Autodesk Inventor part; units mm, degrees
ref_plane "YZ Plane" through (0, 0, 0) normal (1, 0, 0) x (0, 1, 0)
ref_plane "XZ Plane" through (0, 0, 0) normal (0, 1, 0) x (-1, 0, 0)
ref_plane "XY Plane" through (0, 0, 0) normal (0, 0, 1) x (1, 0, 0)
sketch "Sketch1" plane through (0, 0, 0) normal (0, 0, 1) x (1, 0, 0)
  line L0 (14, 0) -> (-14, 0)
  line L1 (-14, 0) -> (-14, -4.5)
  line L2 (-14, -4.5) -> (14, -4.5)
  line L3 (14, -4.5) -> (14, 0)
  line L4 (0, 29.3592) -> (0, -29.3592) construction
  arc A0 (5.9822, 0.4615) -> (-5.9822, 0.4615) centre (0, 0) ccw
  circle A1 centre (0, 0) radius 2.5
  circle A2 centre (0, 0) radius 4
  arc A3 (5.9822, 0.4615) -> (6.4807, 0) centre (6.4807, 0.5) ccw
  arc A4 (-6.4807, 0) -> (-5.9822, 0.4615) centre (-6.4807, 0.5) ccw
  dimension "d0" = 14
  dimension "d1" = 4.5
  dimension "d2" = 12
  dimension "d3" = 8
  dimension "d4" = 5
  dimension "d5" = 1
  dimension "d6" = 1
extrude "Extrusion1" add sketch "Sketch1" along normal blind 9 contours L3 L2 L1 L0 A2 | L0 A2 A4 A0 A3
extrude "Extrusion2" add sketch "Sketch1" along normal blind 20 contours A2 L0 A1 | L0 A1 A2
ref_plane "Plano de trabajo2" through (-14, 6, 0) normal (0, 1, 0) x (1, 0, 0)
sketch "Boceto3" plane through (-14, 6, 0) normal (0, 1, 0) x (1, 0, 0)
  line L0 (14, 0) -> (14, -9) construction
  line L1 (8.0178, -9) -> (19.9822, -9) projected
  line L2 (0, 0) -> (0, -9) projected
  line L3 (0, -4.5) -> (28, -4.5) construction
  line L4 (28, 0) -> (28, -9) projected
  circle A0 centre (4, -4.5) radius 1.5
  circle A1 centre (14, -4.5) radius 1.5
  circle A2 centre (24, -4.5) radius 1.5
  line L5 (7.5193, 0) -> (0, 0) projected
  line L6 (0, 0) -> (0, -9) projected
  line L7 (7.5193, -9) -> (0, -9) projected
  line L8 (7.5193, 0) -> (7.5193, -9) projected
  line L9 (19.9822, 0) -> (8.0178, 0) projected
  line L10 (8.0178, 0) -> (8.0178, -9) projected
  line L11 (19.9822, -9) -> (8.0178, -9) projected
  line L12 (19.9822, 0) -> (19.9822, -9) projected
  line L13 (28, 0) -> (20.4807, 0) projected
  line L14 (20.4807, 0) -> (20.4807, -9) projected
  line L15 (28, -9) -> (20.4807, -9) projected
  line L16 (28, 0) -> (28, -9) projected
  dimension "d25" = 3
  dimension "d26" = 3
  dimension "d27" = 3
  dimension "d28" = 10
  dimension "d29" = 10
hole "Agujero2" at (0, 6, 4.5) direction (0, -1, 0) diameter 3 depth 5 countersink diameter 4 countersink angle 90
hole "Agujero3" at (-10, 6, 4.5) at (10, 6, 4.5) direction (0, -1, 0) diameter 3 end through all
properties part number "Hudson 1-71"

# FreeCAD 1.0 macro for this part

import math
import FreeCAD as App
import Part
import Sketcher

doc = App.newDocument("Part")
body = doc.addObject("PartDesign::Body", "Body")

# Sketch on XY plane
sketch1 = body.newObject("Sketcher::SketchObject", "Sketch")
sketch1.AttachmentSupport = (doc.getObject("XY_Plane"), [""])
sketch1.MapMode = "FlatFace"
sketch1.addGeometry([
    Part.LineSegment(App.Vector(14, -4.5, 0), App.Vector(14, 0, 0)),  # 0
    Part.LineSegment(App.Vector(14, 0, 0), App.Vector(6.4807, 0, 0)),  # 1
    Part.ArcOfCircle(Part.Circle(App.Vector(6.4807, 0.5, 0), App.Vector(0, 0, 1), 0.499984), math.radians(-175.583717), math.radians(-90)),  # 2
    Part.ArcOfCircle(Part.Circle(App.Vector(0, 0, 0), App.Vector(0, 0, 1), 5.999975), math.radians(4.411376), math.radians(175.588624)),  # 3
    Part.ArcOfCircle(Part.Circle(App.Vector(-6.4807, 0.5, 0), App.Vector(0, 0, 1), 0.5), math.radians(-90), math.radians(-4.416283)),  # 4
    Part.LineSegment(App.Vector(-6.4807, 0, 0), App.Vector(-14, 0, 0)),  # 5
    Part.LineSegment(App.Vector(-14, 0, 0), App.Vector(-14, -4.5, 0)),  # 6
    Part.LineSegment(App.Vector(-14, -4.5, 0), App.Vector(14, -4.5, 0)),  # 7
    Part.Circle(App.Vector(0, 0, 0), App.Vector(0, 0, 1), 4),  # 8
], False)
sketch1.addConstraint([
    Sketcher.Constraint("Coincident", 0, 2, 1, 1),
    Sketcher.Constraint("Tangent", 1, 2, 2, 2),
    Sketcher.Constraint("Tangent", 2, 1, 3, 1),
    Sketcher.Constraint("Tangent", 3, 2, 4, 2),
    Sketcher.Constraint("Tangent", 4, 1, 5, 1),
    Sketcher.Constraint("Coincident", 5, 2, 6, 1),
    Sketcher.Constraint("Coincident", 6, 2, 7, 1),
    Sketcher.Constraint("Coincident", 7, 2, 0, 1),
    Sketcher.Constraint("Vertical", 0),
    Sketcher.Constraint("Horizontal", 1),
    Sketcher.Constraint("Horizontal", 5),
    Sketcher.Constraint("Vertical", 6),
    Sketcher.Constraint("Horizontal", 7),
    Sketcher.Constraint("Coincident", 3, 3, -1, 1),
    Sketcher.Constraint("Coincident", 8, 3, -1, 1),
    Sketcher.Constraint("Equal", 2, 4),
    Sketcher.Constraint("Symmetric", 1, 2, 4, 1, -1, 1),
    Sketcher.Constraint("Equal", 1, 5),
    Sketcher.Constraint("Diameter", 8, 8.0),
    Sketcher.Constraint("Radius", 3, 6.0),
    Sketcher.Constraint("Radius", 2, 0.5),
    Sketcher.Constraint("DistanceY", 0, 1, 0, 2, 4.5),
    Sketcher.Constraint("DistanceX", -1, 1, 0, 2, 14.0),
])
pad1 = body.newObject("PartDesign::Pad", "Pad")
pad1.Profile = sketch1
pad1.Length = 9

# Sketch on XY plane
sketch2 = body.newObject("Sketcher::SketchObject", "Sketch001")
sketch2.AttachmentSupport = (doc.getObject("XY_Plane"), [""])
sketch2.MapMode = "FlatFace"
sketch2.addGeometry([
    Part.Circle(App.Vector(0, 0, 0), App.Vector(0, 0, 1), 4),
    Part.Circle(App.Vector(0, 0, 0), App.Vector(0, 0, 1), 2.5),
], False)
sketch2.addConstraint([
    Sketcher.Constraint("Coincident", 0, 3, -1, 1),
    Sketcher.Constraint("Coincident", 1, 3, -1, 1),
    Sketcher.Constraint("Diameter", 0, 8.0),
    Sketcher.Constraint("Diameter", 1, 5.0),
])
pad2 = body.newObject("PartDesign::Pad", "Pad001")
pad2.Profile = sketch2
pad2.Length = 20

# Sketch on XZ plane
sketch3 = body.newObject("Sketcher::SketchObject", "Sketch002")
sketch3.AttachmentSupport = (doc.getObject("XZ_Plane"), [""])
sketch3.MapMode = "FlatFace"
sketch3.AttachmentOffset = App.Placement(App.Vector(0, 0, -6), App.Rotation())
sketch3.addGeometry(Part.Circle(App.Vector(0, 4.5, 0), App.Vector(0, 0, 1), 1.5), False)
sketch3.addConstraint([
    Sketcher.Constraint("PointOnObject", 0, 3, -2),
    Sketcher.Constraint("Diameter", 0, 3.0),
    Sketcher.Constraint("DistanceY", -1, 1, 0, 3, 4.5),
])
doc.recompute()
hole = body.newObject("PartDesign::Hole", "Hole")
hole.Profile = sketch3
hole.ThreadType = "None"
hole.Diameter = 3
hole.DepthType = "Dimension"
hole.Depth = 5
hole.DrillPoint = "Flat"
hole.HoleCutType = "Countersink"
hole.HoleCutDiameter = 4
hole.HoleCutCountersinkAngle = 90
hole.Reversed = True

# Sketch on XZ plane
sketch4 = body.newObject("Sketcher::SketchObject", "Sketch003")
sketch4.AttachmentSupport = (doc.getObject("XZ_Plane"), [""])
sketch4.MapMode = "FlatFace"
sketch4.AttachmentOffset = App.Placement(App.Vector(0, 0, -6), App.Rotation())
sketch4.addGeometry([
    Part.Circle(App.Vector(-10, 4.5, 0), App.Vector(0, 0, 1), 1.5),
    Part.Circle(App.Vector(10, 4.5, 0), App.Vector(0, 0, 1), 1.5),
], False)
sketch4.addConstraint([
    Sketcher.Constraint("Equal", 0, 1),
    Sketcher.Constraint("Symmetric", 0, 3, 1, 3, -2),
    Sketcher.Constraint("Diameter", 0, 3.0),
    Sketcher.Constraint("DistanceX", 0, 3, -1, 1, 10.0),
    Sketcher.Constraint("DistanceY", -1, 1, 0, 3, 4.5),
])
doc.recompute()
hole2 = body.newObject("PartDesign::Hole", "Hole001")
hole2.Profile = sketch4
hole2.ThreadType = "None"
hole2.Diameter = 3
hole2.DepthType = "ThroughAll"
hole2.Reversed = True

doc.recompute()
